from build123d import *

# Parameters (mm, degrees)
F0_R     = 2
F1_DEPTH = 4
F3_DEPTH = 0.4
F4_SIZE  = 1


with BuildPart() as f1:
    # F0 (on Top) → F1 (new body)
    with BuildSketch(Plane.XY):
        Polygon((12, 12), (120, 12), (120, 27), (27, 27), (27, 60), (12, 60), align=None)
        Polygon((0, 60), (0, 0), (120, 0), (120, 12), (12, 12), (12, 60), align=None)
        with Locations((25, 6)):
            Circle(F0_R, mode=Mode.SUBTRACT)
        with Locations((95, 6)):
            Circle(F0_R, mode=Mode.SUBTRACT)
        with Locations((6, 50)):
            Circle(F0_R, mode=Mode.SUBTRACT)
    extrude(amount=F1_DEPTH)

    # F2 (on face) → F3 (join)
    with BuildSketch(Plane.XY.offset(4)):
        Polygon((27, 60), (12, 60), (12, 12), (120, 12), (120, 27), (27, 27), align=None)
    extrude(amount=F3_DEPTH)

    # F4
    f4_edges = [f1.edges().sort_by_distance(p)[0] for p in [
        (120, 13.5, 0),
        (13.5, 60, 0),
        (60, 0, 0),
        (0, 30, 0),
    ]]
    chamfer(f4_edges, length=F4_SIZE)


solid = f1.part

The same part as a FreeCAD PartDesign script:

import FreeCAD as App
import Part
import Sketcher

V = App.Vector


def edges_at(feature, points):
    """Names of the edges that pass closest to the given points."""
    edges = feature.Shape.Edges
    near = lambda p: min(range(len(edges)), key=lambda i: edges[i].distToShape(Part.Vertex(*p))[0])
    return sorted({f"Edge{near(p) + 1}" for p in points})


def add_polygon(sketch, points):
    """Adds a closed chain of lines whose ends are joined by coincident constraints."""
    first, n = sketch.GeometryCount, len(points)
    for a, b in zip(points, points[1:] + points[:1]):
        sketch.addGeometry(Part.LineSegment(App.Vector(*a, 0), App.Vector(*b, 0)), False)
    for i in range(n):
        sketch.addConstraint(Sketcher.Constraint("Coincident", first + i, 2, first + (i + 1) % n, 1))

doc = App.newDocument("Part")
body = doc.addObject("PartDesign::Body", "Body")

sketch1 = body.newObject("Sketcher::SketchObject", "Sketch")
sketch1.AttachmentSupport = (doc.getObject("XY_Plane"), [""])
sketch1.MapMode = "FlatFace"
add_polygon(sketch1, [(120, 27), (27, 27), (27, 60), (0, 60), (0, 0), (120, 0)])
sketch1.addGeometry(Part.Circle(V(25, 6, 0), V(0, 0, 1), 2), False)
sketch1.addGeometry(Part.Circle(V(95, 6, 0), V(0, 0, 1), 2), False)
sketch1.addGeometry(Part.Circle(V(6, 50, 0), V(0, 0, 1), 2), False)
sketch1.addConstraint([
    Sketcher.Constraint("Horizontal", 0),
    Sketcher.Constraint("Vertical", 1),
    Sketcher.Constraint("Horizontal", 2),
    Sketcher.Constraint("Vertical", 3),
    Sketcher.Constraint("Horizontal", 4),
    Sketcher.Constraint("Vertical", 5),
    Sketcher.Constraint("Coincident", 3, 2, -1, 1),
    Sketcher.Constraint("Equal", 6, 7),
    Sketcher.Constraint("Equal", 7, 8),
    Sketcher.Constraint("Horizontal", 6, 3, 7, 3),
    Sketcher.Constraint("Equal", 2, 5),
    Sketcher.Constraint("Diameter", 6, 4.0),
    Sketcher.Constraint("DistanceX", 0, 2, 0, 1, 93.0),
    Sketcher.Constraint("DistanceX", 2, 2, 2, 1, 27.0),
    Sketcher.Constraint("DistanceY", 1, 1, 1, 2, 33.0),
    Sketcher.Constraint("DistanceX", -1, 1, 6, 3, 25.0),
    Sketcher.Constraint("DistanceY", -1, 1, 6, 3, 6.0),
    Sketcher.Constraint("DistanceX", -1, 1, 7, 3, 95.0),
    Sketcher.Constraint("DistanceX", -1, 1, 8, 3, 6.0),
    Sketcher.Constraint("DistanceY", -1, 1, 8, 3, 50.0),
])
pad1 = body.newObject("PartDesign::Pad", "Pad")
pad1.Profile = sketch1
pad1.Length = 4

sketch2 = body.newObject("Sketcher::SketchObject", "Sketch001")
sketch2.AttachmentSupport = (doc.getObject("XY_Plane"), [""])
sketch2.MapMode = "FlatFace"
sketch2.AttachmentOffset = App.Placement(V(0, 0, 4), App.Rotation())
add_polygon(sketch2, [(27, 60), (12, 60), (12, 12), (120, 12), (120, 27), (27, 27)])
sketch2.addConstraint([
    Sketcher.Constraint("Horizontal", 0),
    Sketcher.Constraint("Vertical", 1),
    Sketcher.Constraint("Horizontal", 2),
    Sketcher.Constraint("Vertical", 3),
    Sketcher.Constraint("Horizontal", 4),
    Sketcher.Constraint("Vertical", 5),
    Sketcher.Constraint("Equal", 0, 3),
    Sketcher.Constraint("DistanceX", 0, 2, 0, 1, 15.0),
    Sketcher.Constraint("DistanceX", 2, 1, 2, 2, 108.0),
    Sketcher.Constraint("DistanceY", 1, 2, 1, 1, 48.0),
    Sketcher.Constraint("DistanceX", -1, 1, 0, 2, 12.0),
    Sketcher.Constraint("DistanceY", -1, 1, 0, 2, 60.0),
])
pad2 = body.newObject("PartDesign::Pad", "Pad001")
pad2.Profile = sketch2
pad2.Length = 0.4
doc.recompute()

chamfer = body.newObject("PartDesign::Chamfer", "Chamfer")
chamfer.Base = (pad2, edges_at(pad2, [
    (120, 13.5, 0),
    (13.5, 60, 0),
    (60, 0, 0),
    (0, 30, 0),
]))
chamfer.Size = 1

doc.recompute()
